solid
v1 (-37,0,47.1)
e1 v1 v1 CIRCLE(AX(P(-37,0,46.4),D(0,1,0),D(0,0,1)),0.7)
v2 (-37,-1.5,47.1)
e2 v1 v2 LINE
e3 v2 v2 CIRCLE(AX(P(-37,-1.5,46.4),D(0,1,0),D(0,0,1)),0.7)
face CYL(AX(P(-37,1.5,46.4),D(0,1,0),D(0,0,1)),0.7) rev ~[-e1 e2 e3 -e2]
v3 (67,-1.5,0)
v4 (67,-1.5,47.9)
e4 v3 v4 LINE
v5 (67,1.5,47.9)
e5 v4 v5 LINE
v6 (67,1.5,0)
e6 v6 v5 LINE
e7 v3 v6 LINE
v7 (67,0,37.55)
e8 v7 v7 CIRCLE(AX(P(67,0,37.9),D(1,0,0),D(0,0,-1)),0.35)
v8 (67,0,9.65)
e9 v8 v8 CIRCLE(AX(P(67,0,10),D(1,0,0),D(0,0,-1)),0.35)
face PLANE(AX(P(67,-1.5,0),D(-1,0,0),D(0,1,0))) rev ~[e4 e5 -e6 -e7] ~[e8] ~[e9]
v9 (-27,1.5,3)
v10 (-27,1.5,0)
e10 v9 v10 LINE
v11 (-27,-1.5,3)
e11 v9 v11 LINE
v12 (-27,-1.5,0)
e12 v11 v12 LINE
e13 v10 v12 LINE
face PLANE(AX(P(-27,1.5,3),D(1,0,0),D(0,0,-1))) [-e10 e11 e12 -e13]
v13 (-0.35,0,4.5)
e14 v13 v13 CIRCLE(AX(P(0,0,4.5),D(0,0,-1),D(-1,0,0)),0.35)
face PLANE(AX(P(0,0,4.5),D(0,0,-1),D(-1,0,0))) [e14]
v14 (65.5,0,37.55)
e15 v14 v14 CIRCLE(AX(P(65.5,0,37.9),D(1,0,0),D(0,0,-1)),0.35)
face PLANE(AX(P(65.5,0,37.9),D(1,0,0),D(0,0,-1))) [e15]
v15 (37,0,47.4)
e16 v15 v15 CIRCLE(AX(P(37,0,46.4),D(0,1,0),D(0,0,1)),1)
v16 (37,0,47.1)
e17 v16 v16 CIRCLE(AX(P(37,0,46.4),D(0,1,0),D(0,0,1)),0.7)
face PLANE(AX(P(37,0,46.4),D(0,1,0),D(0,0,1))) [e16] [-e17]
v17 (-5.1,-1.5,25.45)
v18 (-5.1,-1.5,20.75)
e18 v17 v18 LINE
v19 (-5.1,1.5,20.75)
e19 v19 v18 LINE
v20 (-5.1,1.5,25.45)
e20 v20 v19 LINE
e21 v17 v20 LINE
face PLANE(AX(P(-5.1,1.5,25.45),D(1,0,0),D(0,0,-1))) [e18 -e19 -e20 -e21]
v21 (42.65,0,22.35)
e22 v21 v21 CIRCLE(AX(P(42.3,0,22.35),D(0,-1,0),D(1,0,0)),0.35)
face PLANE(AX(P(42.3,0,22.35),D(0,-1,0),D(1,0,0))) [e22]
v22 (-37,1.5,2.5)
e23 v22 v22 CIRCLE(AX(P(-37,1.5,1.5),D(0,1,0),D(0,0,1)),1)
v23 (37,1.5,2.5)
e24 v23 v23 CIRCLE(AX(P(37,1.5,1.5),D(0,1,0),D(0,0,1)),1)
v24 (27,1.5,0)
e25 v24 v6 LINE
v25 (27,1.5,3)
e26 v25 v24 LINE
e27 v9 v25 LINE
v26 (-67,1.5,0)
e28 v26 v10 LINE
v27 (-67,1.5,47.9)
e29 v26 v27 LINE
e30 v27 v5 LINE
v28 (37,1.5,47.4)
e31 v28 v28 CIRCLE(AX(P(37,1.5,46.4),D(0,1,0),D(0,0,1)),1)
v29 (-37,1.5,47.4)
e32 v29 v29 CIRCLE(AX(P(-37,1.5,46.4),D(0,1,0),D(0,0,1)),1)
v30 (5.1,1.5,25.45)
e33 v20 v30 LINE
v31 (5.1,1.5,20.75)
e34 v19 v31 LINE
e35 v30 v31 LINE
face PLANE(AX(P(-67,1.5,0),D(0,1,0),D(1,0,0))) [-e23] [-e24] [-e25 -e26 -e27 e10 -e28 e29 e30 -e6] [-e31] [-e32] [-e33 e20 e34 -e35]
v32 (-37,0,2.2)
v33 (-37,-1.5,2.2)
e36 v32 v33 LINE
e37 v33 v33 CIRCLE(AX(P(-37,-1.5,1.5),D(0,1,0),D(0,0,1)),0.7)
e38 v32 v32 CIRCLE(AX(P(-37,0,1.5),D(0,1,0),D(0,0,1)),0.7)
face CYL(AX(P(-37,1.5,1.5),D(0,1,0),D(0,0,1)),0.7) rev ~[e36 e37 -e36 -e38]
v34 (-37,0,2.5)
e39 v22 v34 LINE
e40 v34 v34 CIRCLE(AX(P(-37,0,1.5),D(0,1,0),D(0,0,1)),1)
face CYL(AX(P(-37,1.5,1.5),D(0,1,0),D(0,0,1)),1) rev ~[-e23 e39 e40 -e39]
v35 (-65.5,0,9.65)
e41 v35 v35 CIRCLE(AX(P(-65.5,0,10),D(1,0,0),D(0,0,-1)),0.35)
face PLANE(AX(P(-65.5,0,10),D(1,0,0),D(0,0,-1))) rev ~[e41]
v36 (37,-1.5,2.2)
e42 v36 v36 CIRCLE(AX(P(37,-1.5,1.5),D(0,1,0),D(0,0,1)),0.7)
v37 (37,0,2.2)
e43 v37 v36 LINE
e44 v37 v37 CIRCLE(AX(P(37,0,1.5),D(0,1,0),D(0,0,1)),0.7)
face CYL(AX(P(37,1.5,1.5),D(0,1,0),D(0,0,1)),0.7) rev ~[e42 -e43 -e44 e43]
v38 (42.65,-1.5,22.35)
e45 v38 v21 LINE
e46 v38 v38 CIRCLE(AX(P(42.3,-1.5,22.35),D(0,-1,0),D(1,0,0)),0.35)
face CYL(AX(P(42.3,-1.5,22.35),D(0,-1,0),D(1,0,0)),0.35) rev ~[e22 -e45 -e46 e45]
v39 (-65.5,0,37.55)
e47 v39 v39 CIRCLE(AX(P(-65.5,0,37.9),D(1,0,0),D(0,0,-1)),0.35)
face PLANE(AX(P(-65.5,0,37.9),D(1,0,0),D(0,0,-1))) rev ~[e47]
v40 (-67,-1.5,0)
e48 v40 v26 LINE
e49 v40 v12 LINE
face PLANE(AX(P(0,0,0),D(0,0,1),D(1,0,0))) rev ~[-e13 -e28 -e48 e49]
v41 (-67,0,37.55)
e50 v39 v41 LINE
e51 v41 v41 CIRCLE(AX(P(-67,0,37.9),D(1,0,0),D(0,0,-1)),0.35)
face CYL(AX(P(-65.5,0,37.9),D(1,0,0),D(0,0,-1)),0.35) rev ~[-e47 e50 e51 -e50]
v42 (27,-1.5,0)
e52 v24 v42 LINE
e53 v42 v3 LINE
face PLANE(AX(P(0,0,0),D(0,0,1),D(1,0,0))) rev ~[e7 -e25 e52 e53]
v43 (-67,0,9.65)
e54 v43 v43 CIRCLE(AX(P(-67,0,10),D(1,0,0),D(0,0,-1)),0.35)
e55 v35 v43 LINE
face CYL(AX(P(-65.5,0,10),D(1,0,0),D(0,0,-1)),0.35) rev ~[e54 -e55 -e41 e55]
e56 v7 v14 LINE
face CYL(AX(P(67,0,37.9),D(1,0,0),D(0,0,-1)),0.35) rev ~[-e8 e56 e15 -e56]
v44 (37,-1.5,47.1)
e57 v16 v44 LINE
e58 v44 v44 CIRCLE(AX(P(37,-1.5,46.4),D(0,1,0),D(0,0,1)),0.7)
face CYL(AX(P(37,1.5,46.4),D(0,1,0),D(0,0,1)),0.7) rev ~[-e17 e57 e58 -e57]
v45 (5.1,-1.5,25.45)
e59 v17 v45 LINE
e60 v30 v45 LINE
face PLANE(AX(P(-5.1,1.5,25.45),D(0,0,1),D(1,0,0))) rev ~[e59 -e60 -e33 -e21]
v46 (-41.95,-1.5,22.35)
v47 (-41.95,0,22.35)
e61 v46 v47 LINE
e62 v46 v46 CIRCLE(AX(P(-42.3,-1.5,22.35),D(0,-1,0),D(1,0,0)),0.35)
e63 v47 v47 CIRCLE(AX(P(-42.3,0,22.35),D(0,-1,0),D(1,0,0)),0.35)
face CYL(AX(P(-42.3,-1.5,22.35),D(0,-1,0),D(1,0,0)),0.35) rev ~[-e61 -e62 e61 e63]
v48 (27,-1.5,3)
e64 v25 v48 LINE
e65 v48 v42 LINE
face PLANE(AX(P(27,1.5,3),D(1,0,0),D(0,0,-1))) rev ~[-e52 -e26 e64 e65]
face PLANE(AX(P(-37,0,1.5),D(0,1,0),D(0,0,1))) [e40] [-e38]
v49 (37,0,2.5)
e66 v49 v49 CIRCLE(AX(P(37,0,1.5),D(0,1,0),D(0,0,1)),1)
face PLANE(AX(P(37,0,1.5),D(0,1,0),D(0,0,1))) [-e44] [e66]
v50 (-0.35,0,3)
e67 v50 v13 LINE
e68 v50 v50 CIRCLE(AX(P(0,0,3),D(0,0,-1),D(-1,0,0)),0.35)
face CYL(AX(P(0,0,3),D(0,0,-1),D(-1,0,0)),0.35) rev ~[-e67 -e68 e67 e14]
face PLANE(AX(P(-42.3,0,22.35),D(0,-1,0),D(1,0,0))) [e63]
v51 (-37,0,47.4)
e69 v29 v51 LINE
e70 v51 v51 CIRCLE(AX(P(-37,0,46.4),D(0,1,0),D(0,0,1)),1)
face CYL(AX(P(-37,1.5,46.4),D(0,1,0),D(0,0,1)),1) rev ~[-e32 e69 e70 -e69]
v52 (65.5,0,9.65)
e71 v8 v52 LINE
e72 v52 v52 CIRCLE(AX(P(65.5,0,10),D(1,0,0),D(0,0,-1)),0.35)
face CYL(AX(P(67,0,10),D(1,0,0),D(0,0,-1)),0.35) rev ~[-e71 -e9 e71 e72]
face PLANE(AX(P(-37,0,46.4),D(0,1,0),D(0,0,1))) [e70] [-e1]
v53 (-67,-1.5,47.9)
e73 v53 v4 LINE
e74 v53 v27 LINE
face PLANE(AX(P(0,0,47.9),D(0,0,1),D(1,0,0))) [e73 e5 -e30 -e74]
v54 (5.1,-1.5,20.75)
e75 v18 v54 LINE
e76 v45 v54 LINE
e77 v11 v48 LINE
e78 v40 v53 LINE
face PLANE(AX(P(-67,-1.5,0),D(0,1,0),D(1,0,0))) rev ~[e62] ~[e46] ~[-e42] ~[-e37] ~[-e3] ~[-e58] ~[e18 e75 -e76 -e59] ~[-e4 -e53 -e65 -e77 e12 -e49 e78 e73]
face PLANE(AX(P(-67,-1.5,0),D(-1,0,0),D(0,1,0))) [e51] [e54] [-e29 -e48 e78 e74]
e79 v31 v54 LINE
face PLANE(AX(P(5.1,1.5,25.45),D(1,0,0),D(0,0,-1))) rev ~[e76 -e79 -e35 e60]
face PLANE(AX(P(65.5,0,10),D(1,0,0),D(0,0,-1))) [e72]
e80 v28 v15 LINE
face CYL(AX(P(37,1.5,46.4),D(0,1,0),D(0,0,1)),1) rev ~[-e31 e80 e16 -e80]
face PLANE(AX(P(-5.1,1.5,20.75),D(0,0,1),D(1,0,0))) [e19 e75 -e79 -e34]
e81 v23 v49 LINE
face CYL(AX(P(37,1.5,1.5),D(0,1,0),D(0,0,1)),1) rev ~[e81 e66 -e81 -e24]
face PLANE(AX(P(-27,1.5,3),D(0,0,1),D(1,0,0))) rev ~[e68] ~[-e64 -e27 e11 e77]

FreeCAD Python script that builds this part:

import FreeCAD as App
import Part
import Sketcher
from FreeCAD import Vector


def add_polygon(sketch, points):
    """Adds a closed chain of lines whose ends are joined by coincident constraints."""
    first, n = sketch.GeometryCount, len(points)
    for a, b in zip(points, points[1:] + points[:1]):
        sketch.addGeometry(Part.LineSegment(App.Vector(*a, 0), App.Vector(*b, 0)), False)
    for i in range(n):
        sketch.addConstraint(Sketcher.Constraint("Coincident", first + i, 2, first + (i + 1) % n, 1))

doc = App.newDocument("Part")
body = doc.addObject("PartDesign::Body", "Body")

sketch1 = doc.addObject("Sketcher::SketchObject", "Sketch")
body.addObject(sketch1)
sketch1.AttachmentSupport = (doc.XY_Plane, [""])
sketch1.MapMode = "FlatFace"
add_polygon(sketch1, [(-67, 1.5), (-67, -1.5), (67, -1.5), (67, 1.5)])
sketch1.addConstraint(Sketcher.Constraint("Vertical", 0))
sketch1.addConstraint(Sketcher.Constraint("Horizontal", 1))
sketch1.addConstraint(Sketcher.Constraint("Vertical", 2))
sketch1.addConstraint(Sketcher.Constraint("Horizontal", 3))
sketch1.addConstraint(Sketcher.Constraint("Symmetric", 0, 2, 2, 2, -1, 1))
sketch1.addConstraint(Sketcher.Constraint("DistanceX", 1, 1, 1, 2, 134.0))
sketch1.addConstraint(Sketcher.Constraint("DistanceY", 0, 2, 0, 1, 3.0))
pad1 = doc.addObject("PartDesign::Pad", "Pad")
body.addObject(pad1)
pad1.Profile = sketch1
pad1.Length = 47.9

sketch2 = doc.addObject("Sketcher::SketchObject", "Sketch001")
body.addObject(sketch2)
sketch2.AttachmentSupport = (doc.XZ_Plane, [""])
sketch2.MapMode = "FlatFace"
sketch2.AttachmentOffset = App.Placement(Vector(0, 0, -1.5), App.Rotation())
sketch2.addGeometry(Part.Circle(Vector(37, 46.4, 0), Vector(0, 0, 1), 0.7), False)
sketch2.addGeometry(Part.Circle(Vector(-37, 46.4, 0), Vector(0, 0, 1), 0.7), False)
add_polygon(sketch2, [(-5.1, 20.8), (-5.1, 25.4), (5.1, 25.4), (5.1, 20.8)])
add_polygon(sketch2, [(-27, 0), (-27, 3), (27, 3), (27, 0)])
sketch2.addGeometry(Part.Circle(Vector(-37, 1.5, 0), Vector(0, 0, 1), 0.7), False)
sketch2.addGeometry(Part.Circle(Vector(37, 1.5, 0), Vector(0, 0, 1), 0.7), False)
sketch2.addConstraint(Sketcher.Constraint("Vertical", 2))
sketch2.addConstraint(Sketcher.Constraint("Horizontal", 3))
sketch2.addConstraint(Sketcher.Constraint("Vertical", 4))
sketch2.addConstraint(Sketcher.Constraint("Horizontal", 5))
sketch2.addConstraint(Sketcher.Constraint("Vertical", 6))
sketch2.addConstraint(Sketcher.Constraint("Horizontal", 7))
sketch2.addConstraint(Sketcher.Constraint("Vertical", 8))
sketch2.addConstraint(Sketcher.Constraint("Horizontal", 9))
sketch2.addConstraint(Sketcher.Constraint("Equal", 0, 1))
sketch2.addConstraint(Sketcher.Constraint("Equal", 1, 10))
sketch2.addConstraint(Sketcher.Constraint("Equal", 10, 11))
sketch2.addConstraint(Sketcher.Constraint("Symmetric", 8, 2, 9, 2, -1, 1))
sketch2.addConstraint(Sketcher.Constraint("Symmetric", 0, 3, 1, 3, -2))
sketch2.addConstraint(Sketcher.Constraint("Symmetric", 10, 3, 11, 3, -2))
sketch2.addConstraint(Sketcher.Constraint("Vertical", 1, 3, 10, 3))
sketch2.addConstraint(Sketcher.Constraint("Diameter", 0, 1.4))
sketch2.addConstraint(Sketcher.Constraint("DistanceX", 7, 1, 7, 2, 54.0))
sketch2.addConstraint(Sketcher.Constraint("DistanceY", 6, 1, 6, 2, 3.0))
sketch2.addConstraint(Sketcher.Constraint("DistanceX", 3, 1, 3, 2, 10.2))
sketch2.addConstraint(Sketcher.Constraint("DistanceY", 2, 1, 2, 2, 4.7))
sketch2.addConstraint(Sketcher.Constraint("DistanceX", -1, 1, 0, 3, 37.0))
sketch2.addConstraint(Sketcher.Constraint("DistanceY", -1, 1, 0, 3, 46.4))
sketch2.addConstraint(Sketcher.Constraint("DistanceY", -1, 1, 10, 3, 1.5))
sketch2.addConstraint(Sketcher.Constraint("DistanceX", 2, 2, -1, 1, 5.1))
sketch2.addConstraint(Sketcher.Constraint("DistanceY", -1, 1, 2, 2, 25.45))
pocket1 = doc.addObject("PartDesign::Pocket", "Pocket")
body.addObject(pocket1)
pocket1.Profile = sketch2
pocket1.Type = "ThroughAll"
pocket1.Reversed = True

sketch3 = doc.addObject("Sketcher::SketchObject", "Sketch002")
body.addObject(sketch3)
sketch3.AttachmentSupport = (doc.XZ_Plane, [""])
sketch3.MapMode = "FlatFace"
sketch3.AttachmentOffset = App.Placement(Vector(0, 0, -1.5), App.Rotation())
sketch3.addGeometry(Part.Circle(Vector(-37, 46.4, 0), Vector(0, 0, 1), 1), False)
sketch3.addGeometry(Part.Circle(Vector(-37, 46.4, 0), Vector(0, 0, 1), 0.7), False)
sketch3.addGeometry(Part.Circle(Vector(37, 46.4, 0), Vector(0, 0, 1), 1), False)
sketch3.addGeometry(Part.Circle(Vector(37, 46.4, 0), Vector(0, 0, 1), 0.7), False)
sketch3.addGeometry(Part.Circle(Vector(37, 1.5, 0), Vector(0, 0, 1), 1), False)
sketch3.addGeometry(Part.Circle(Vector(37, 1.5, 0), Vector(0, 0, 1), 0.7), False)
sketch3.addGeometry(Part.Circle(Vector(-37, 1.5, 0), Vector(0, 0, 1), 1), False)
sketch3.addGeometry(Part.Circle(Vector(-37, 1.5, 0), Vector(0, 0, 1), 0.7), False)
add_polygon(sketch3, [(-5.1, 20.8), (-5.1, 25.4), (5.1, 25.4), (5.1, 20.8)])
add_polygon(sketch3, [(-27, 0), (-27, 3), (27, 3), (27, 0)])
sketch3.addConstraint(Sketcher.Constraint("Vertical", 8))
sketch3.addConstraint(Sketcher.Constraint("Horizontal", 9))
sketch3.addConstraint(Sketcher.Constraint("Vertical", 10))
sketch3.addConstraint(Sketcher.Constraint("Horizontal", 11))
sketch3.addConstraint(Sketcher.Constraint("Vertical", 12))
sketch3.addConstraint(Sketcher.Constraint("Horizontal", 13))
sketch3.addConstraint(Sketcher.Constraint("Vertical", 14))
sketch3.addConstraint(Sketcher.Constraint("Horizontal", 15))
sketch3.addConstraint(Sketcher.Constraint("Coincident", 1, 3, 0, 3))
sketch3.addConstraint(Sketcher.Constraint("Coincident", 3, 3, 2, 3))
sketch3.addConstraint(Sketcher.Constraint("Coincident", 5, 3, 4, 3))
sketch3.addConstraint(Sketcher.Constraint("Coincident", 7, 3, 6, 3))
sketch3.addConstraint(Sketcher.Constraint("Equal", 0, 2))
sketch3.addConstraint(Sketcher.Constraint("Equal", 1, 3))
sketch3.addConstraint(Sketcher.Constraint("Equal", 2, 4))
sketch3.addConstraint(Sketcher.Constraint("Equal", 3, 5))
sketch3.addConstraint(Sketcher.Constraint("Equal", 4, 6))
sketch3.addConstraint(Sketcher.Constraint("Equal", 5, 7))
sketch3.addConstraint(Sketcher.Constraint("Symmetric", 14, 2, 15, 2, -1, 1))
sketch3.addConstraint(Sketcher.Constraint("Symmetric", 0, 3, 2, 3, -2))
sketch3.addConstraint(Sketcher.Constraint("Symmetric", 4, 3, 6, 3, -2))
sketch3.addConstraint(Sketcher.Constraint("Vertical", 3, 3, 4, 3))
sketch3.addConstraint(Sketcher.Constraint("Diameter", 0, 2.0))
sketch3.addConstraint(Sketcher.Constraint("Diameter", 1, 1.4))
sketch3.addConstraint(Sketcher.Constraint("DistanceX", 13, 1, 13, 2, 54.0))
sketch3.addConstraint(Sketcher.Constraint("DistanceY", 12, 1, 12, 2, 3.0))
sketch3.addConstraint(Sketcher.Constraint("DistanceX", 9, 1, 9, 2, 10.2))
sketch3.addConstraint(Sketcher.Constraint("DistanceY", 8, 1, 8, 2, 4.7))
sketch3.addConstraint(Sketcher.Constraint("DistanceX", 0, 3, -1, 1, 37.0))
sketch3.addConstraint(Sketcher.Constraint("DistanceY", -1, 1, 0, 3, 46.4))
sketch3.addConstraint(Sketcher.Constraint("DistanceY", -1, 1, 4, 3, 1.5))
sketch3.addConstraint(Sketcher.Constraint("DistanceX", 8, 2, -1, 1, 5.1))
sketch3.addConstraint(Sketcher.Constraint("DistanceY", -1, 1, 8, 2, 25.45))
pocket2 = doc.addObject("PartDesign::Pocket", "Pocket001")
body.addObject(pocket2)
pocket2.Profile = sketch3
pocket2.Length = 1.5
pocket2.Reversed = True

sketch4 = doc.addObject("Sketcher::SketchObject", "Sketch003")
body.addObject(sketch4)
sketch4.AttachmentSupport = (doc.XZ_Plane, [""])
sketch4.MapMode = "FlatFace"
sketch4.AttachmentOffset = App.Placement(Vector(0, 0, 1.5), App.Rotation())
sketch4.addGeometry(Part.Circle(Vector(42.3, 22.35, 0), Vector(0, 0, 1), 0.35), False)
sketch4.addGeometry(Part.Circle(Vector(-42.3, 22.35, 0), Vector(0, 0, 1), 0.35), False)
sketch4.addConstraint(Sketcher.Constraint("Equal", 0, 1))
sketch4.addConstraint(Sketcher.Constraint("Symmetric", 0, 3, 1, 3, -2))
sketch4.addConstraint(Sketcher.Constraint("Diameter", 0, 0.7))
sketch4.addConstraint(Sketcher.Constraint("DistanceX", -1, 1, 0, 3, 42.3))
sketch4.addConstraint(Sketcher.Constraint("DistanceY", -1, 1, 0, 3, 22.35))
pocket3 = doc.addObject("PartDesign::Pocket", "Pocket002")
body.addObject(pocket3)
pocket3.Profile = sketch4
pocket3.Length = 1.5

sketch5 = doc.addObject("Sketcher::SketchObject", "Sketch004")
body.addObject(sketch5)
sketch5.AttachmentSupport = (doc.XY_Plane, [""])
sketch5.MapMode = "FlatFace"
sketch5.AttachmentOffset = App.Placement(Vector(0, 0, 3), App.Rotation())
sketch5.addGeometry(Part.Circle(Vector(0, 0, 0), Vector(0, 0, 1), 0.35), False)
sketch5.addConstraint(Sketcher.Constraint("Coincident", 0, 3, -1, 1))
sketch5.addConstraint(Sketcher.Constraint("Diameter", 0, 0.7))
pocket4 = doc.addObject("PartDesign::Pocket", "Pocket003")
body.addObject(pocket4)
pocket4.Profile = sketch5
pocket4.Length = 1.5
pocket4.Reversed = True

sketch6 = doc.addObject("Sketcher::SketchObject", "Sketch005")
body.addObject(sketch6)
sketch6.AttachmentSupport = (doc.YZ_Plane, [""])
sketch6.MapMode = "FlatFace"
sketch6.AttachmentOffset = App.Placement(Vector(0, 0, 67), App.Rotation())
sketch6.addGeometry(Part.Circle(Vector(0, 10, 0), Vector(0, 0, 1), 0.35), False)
sketch6.addGeometry(Part.Circle(Vector(0, 37.9, 0), Vector(0, 0, 1), 0.35), False)
sketch6.addConstraint(Sketcher.Constraint("Equal", 0, 1))
sketch6.addConstraint(Sketcher.Constraint("PointOnObject", 0, 3, -2))
sketch6.addConstraint(Sketcher.Constraint("PointOnObject", 1, 3, -2))
sketch6.addConstraint(Sketcher.Constraint("Diameter", 0, 0.7))
sketch6.addConstraint(Sketcher.Constraint("DistanceY", -1, 1, 0, 3, 10.0))
sketch6.addConstraint(Sketcher.Constraint("DistanceY", -1, 1, 1, 3, 37.9))
pocket5 = doc.addObject("PartDesign::Pocket", "Pocket004")
body.addObject(pocket5)
pocket5.Profile = sketch6
pocket5.Length = 1.5

sketch7 = doc.addObject("Sketcher::SketchObject", "Sketch006")
body.addObject(sketch7)
sketch7.AttachmentSupport = (doc.YZ_Plane, [""])
sketch7.MapMode = "FlatFace"
sketch7.AttachmentOffset = App.Placement(Vector(0, 0, -65.5), App.Rotation())
sketch7.addGeometry(Part.Circle(Vector(0, 10, 0), Vector(0, 0, 1), 0.35), False)
sketch7.addGeometry(Part.Circle(Vector(0, 37.9, 0), Vector(0, 0, 1), 0.35), False)
sketch7.addConstraint(Sketcher.Constraint("Equal", 0, 1))
sketch7.addConstraint(Sketcher.Constraint("PointOnObject", 0, 3, -2))
sketch7.addConstraint(Sketcher.Constraint("PointOnObject", 1, 3, -2))
sketch7.addConstraint(Sketcher.Constraint("Diameter", 0, 0.7))
sketch7.addConstraint(Sketcher.Constraint("DistanceY", -1, 1, 0, 3, 10.0))
sketch7.addConstraint(Sketcher.Constraint("DistanceY", -1, 1, 1, 3, 37.9))
pocket6 = doc.addObject("PartDesign::Pocket", "Pocket005")
body.addObject(pocket6)
pocket6.Profile = sketch7
pocket6.Length = 1.5

doc.recompute()
